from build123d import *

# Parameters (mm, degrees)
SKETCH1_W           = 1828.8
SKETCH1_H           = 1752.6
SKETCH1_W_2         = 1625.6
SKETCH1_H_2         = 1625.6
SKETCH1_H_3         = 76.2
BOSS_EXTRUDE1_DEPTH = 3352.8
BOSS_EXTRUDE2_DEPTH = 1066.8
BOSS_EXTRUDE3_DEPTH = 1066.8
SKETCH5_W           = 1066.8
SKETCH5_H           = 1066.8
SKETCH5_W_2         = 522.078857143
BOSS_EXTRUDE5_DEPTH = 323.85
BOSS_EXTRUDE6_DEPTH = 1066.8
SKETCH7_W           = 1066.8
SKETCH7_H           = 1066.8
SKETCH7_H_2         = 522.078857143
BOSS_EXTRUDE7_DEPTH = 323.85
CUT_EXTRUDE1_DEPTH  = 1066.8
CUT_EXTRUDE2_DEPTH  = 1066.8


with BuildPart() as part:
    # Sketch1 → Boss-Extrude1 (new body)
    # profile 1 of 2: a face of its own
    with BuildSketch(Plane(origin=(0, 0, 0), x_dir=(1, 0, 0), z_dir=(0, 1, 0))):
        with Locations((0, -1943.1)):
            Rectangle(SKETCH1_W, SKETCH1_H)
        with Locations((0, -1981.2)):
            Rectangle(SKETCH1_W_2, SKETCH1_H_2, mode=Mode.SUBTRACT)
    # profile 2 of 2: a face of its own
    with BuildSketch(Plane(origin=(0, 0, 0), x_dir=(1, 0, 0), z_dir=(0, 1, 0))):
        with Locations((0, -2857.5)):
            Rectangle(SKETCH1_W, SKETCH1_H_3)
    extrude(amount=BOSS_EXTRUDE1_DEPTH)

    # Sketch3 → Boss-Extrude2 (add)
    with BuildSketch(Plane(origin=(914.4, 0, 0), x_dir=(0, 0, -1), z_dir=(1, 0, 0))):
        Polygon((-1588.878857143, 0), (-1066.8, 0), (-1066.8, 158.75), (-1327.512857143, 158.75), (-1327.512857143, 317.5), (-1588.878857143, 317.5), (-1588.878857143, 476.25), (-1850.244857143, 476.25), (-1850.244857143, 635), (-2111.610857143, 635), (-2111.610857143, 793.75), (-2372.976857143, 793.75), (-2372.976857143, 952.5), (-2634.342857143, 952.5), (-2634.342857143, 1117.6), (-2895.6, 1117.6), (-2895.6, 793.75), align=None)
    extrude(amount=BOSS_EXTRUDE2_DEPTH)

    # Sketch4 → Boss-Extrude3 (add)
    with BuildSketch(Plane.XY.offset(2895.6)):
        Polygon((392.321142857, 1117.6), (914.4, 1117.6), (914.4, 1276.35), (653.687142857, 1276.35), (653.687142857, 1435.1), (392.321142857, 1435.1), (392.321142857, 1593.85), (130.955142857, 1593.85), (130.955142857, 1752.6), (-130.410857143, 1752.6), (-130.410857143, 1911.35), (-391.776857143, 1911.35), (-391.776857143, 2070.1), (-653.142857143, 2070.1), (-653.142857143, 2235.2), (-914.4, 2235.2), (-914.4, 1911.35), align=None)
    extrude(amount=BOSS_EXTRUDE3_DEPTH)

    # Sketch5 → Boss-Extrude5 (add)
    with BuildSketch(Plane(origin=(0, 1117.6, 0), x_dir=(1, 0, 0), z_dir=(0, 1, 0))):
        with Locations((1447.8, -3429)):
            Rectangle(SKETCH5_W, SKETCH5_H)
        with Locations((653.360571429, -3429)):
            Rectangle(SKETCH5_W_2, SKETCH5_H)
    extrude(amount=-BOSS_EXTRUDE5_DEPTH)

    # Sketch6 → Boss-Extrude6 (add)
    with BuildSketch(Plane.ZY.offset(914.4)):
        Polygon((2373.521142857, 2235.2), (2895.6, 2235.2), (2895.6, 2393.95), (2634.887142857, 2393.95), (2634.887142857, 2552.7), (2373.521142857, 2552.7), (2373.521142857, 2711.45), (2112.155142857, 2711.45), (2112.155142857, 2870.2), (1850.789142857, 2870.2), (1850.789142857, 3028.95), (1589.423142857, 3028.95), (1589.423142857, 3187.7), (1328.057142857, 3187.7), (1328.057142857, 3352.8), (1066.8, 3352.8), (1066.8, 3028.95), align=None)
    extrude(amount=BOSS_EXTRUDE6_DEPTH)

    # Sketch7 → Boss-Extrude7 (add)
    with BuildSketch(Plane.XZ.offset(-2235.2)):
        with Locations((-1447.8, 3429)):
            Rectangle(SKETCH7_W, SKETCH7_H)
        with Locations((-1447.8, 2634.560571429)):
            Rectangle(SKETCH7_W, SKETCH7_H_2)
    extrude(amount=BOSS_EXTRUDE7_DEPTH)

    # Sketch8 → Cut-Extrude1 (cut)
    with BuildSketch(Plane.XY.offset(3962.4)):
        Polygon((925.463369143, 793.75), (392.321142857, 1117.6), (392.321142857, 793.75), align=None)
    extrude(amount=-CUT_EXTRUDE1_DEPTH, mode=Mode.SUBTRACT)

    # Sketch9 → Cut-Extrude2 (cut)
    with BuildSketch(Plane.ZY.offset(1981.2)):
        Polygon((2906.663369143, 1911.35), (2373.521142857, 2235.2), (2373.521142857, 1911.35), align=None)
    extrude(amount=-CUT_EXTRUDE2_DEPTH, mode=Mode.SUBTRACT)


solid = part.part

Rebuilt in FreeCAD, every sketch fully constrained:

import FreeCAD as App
import Part
import Sketcher

V = App.Vector
Q = App.Units.Quantity


def add_polygon(sketch, points):
    """Adds a closed chain of lines whose ends are joined by coincident constraints."""
    first, n = sketch.GeometryCount, len(points)
    for a, b in zip(points, points[1:] + points[:1]):
        sketch.addGeometry(Part.LineSegment(App.Vector(*a, 0), App.Vector(*b, 0)), False)
    for i in range(n):
        sketch.addConstraint(Sketcher.Constraint("Coincident", first + i, 2, first + (i + 1) % n, 1))

doc = App.newDocument("Part")
body = doc.addObject("PartDesign::Body", "Body")

sketch1 = body.newObject("Sketcher::SketchObject", "Sketch")
sketch1.AttachmentSupport = (doc.getObject("XZ_Plane"), [""])
sketch1.MapMode = "FlatFace"
add_polygon(sketch1, [(-914.4, 1066.8), (-914.4, 2895.6), (914.4, 2895.6), (914.4, 1066.8)])
add_polygon(sketch1, [(812.8, 2794), (-812.8, 2794), (-812.8, 1168.4), (812.8, 1168.4)])
sketch1.addConstraint(Sketcher.Constraint("Vertical", 0))
sketch1.addConstraint(Sketcher.Constraint("Horizontal", 1))
sketch1.addConstraint(Sketcher.Constraint("Vertical", 2))
sketch1.addConstraint(Sketcher.Constraint("Horizontal", 3))
sketch1.addConstraint(Sketcher.Constraint("Horizontal", 4))
sketch1.addConstraint(Sketcher.Constraint("Vertical", 5))
sketch1.addConstraint(Sketcher.Constraint("Horizontal", 6))
sketch1.addConstraint(Sketcher.Constraint("Vertical", 7))
sketch1.addConstraint(Sketcher.Constraint("Equal", 3, 0))
sketch1.addConstraint(Sketcher.Constraint("Equal", 6, 5))
sketch1.addConstraint(Sketcher.Constraint("DistanceX", 1, 1, 1, 2, Q("72 in")))
sketch1.addConstraint(Sketcher.Constraint("DistanceX", 4, 2, 4, 1, Q("64 in")))
sketch1.addConstraint(Sketcher.Constraint("DistanceX", 0, 2, -1, 1, Q("36 in")))
sketch1.addConstraint(Sketcher.Constraint("DistanceY", -1, 1, 0, 2, Q("114 in")))
sketch1.addConstraint(Sketcher.Constraint("DistanceX", 4, 2, -1, 1, Q("32 in")))
sketch1.addConstraint(Sketcher.Constraint("DistanceY", -1, 1, 4, 2, Q("110 in")))
pad1 = body.newObject("PartDesign::Pad", "Pad")
pad1.Profile = sketch1
pad1.Length = Q("132 in")
pad1.Reversed = True

sketch2 = body.newObject("Sketcher::SketchObject", "Sketch001")
sketch2.AttachmentSupport = (doc.getObject("YZ_Plane"), [""])
sketch2.MapMode = "FlatFace"
sketch2.AttachmentOffset = App.Placement(V(0, 0, 36 * 25.4), App.Rotation())
add_polygon(sketch2, [(0, 1588.878857), (0, 1066.8), (158.75, 1066.8), (158.75, 1327.512857), (317.5, 1327.512857), (317.5, 1588.878857), (476.25, 1588.878857), (476.25, 1850.244857), (635, 1850.244857), (635, 2111.610857), (793.75, 2111.610857), (793.75, 2372.976857), (952.5, 2372.976857), (952.5, 2634.342857), (1117.6, 2634.342857), (1117.6, 2895.6), (793.75, 2895.6)])
sketch2.addConstraint(Sketcher.Constraint("Vertical", 0))
sketch2.addConstraint(Sketcher.Constraint("Horizontal", 1))
sketch2.addConstraint(Sketcher.Constraint("Vertical", 2))
sketch2.addConstraint(Sketcher.Constraint("Horizontal", 3))
sketch2.addConstraint(Sketcher.Constraint("Vertical", 4))
sketch2.addConstraint(Sketcher.Constraint("Horizontal", 5))
sketch2.addConstraint(Sketcher.Constraint("Vertical", 6))
sketch2.addConstraint(Sketcher.Constraint("Horizontal", 7))
sketch2.addConstraint(Sketcher.Constraint("Vertical", 8))
sketch2.addConstraint(Sketcher.Constraint("Horizontal", 9))
sketch2.addConstraint(Sketcher.Constraint("Vertical", 10))
sketch2.addConstraint(Sketcher.Constraint("Horizontal", 11))
sketch2.addConstraint(Sketcher.Constraint("Vertical", 12))
sketch2.addConstraint(Sketcher.Constraint("Horizontal", 13))
sketch2.addConstraint(Sketcher.Constraint("Vertical", 14))
sketch2.addConstraint(Sketcher.Constraint("Horizontal", 15))
sketch2.addConstraint(Sketcher.Constraint("PointOnObject", 0, 2, -2))
sketch2.addConstraint(Sketcher.Constraint("Horizontal", 5, 2, 16, 2))
sketch2.addConstraint(Sketcher.Constraint("Vertical", 10, 2, 15, 2))
sketch2.addConstraint(Sketcher.Constraint("Equal", 1, 3))
sketch2.addConstraint(Sketcher.Constraint("Equal", 3, 5))
sketch2.addConstraint(Sketcher.Constraint("Equal", 5, 7))
sketch2.addConstraint(Sketcher.Constraint("Equal", 7, 9))
sketch2.addConstraint(Sketcher.Constraint("Equal", 9, 11))
sketch2.addConstraint(Sketcher.Constraint("Equal", 4, 6))
sketch2.addConstraint(Sketcher.Constraint("Equal", 6, 8))
sketch2.addConstraint(Sketcher.Constraint("Equal", 8, 10))
sketch2.addConstraint(Sketcher.Constraint("Equal", 10, 12))
sketch2.addConstraint(Sketcher.Constraint("DistanceX", 13, 1, 13, 2, Q("6.5 in")))
sketch2.addConstraint(Sketcher.Constraint("DistanceY", -1, 1, 0, 2, Q("42 in")))
sketch2.addConstraint(Sketcher.Constraint("DistanceX", -1, 1, 7, 2, Q("25 in")))
sketch2.addConstraint(Sketcher.Constraint("DistanceY", -1, 1, 14, 2, Q("114 in")))
sketch2.addConstraint(Sketcher.Constraint("DistanceY", 4, 1, 4, 2, Q("10.29 in")))
sketch2.addConstraint(Sketcher.Constraint("Distance", 16, Q("1528.907848 mm")))
pad2 = body.newObject("PartDesign::Pad", "Pad001")
pad2.Profile = sketch2
pad2.Length = Q("42 in")

sketch3 = body.newObject("Sketcher::SketchObject", "Sketch002")
sketch3.AttachmentSupport = (doc.getObject("XY_Plane"), [""])
sketch3.MapMode = "FlatFace"
sketch3.AttachmentOffset = App.Placement(V(0, 0, 114 * 25.4), App.Rotation())
add_polygon(sketch3, [(392.321143, 1117.6), (914.4, 1117.6), (914.4, 1276.35), (653.687143, 1276.35), (653.687143, 1435.1), (392.321143, 1435.1), (392.321143, 1593.85), (130.955143, 1593.85), (130.955143, 1752.6), (-130.410857, 1752.6), (-130.410857, 1911.35), (-391.776857, 1911.35), (-391.776857, 2070.1), (-653.142857, 2070.1), (-653.142857, 2235.2), (-914.4, 2235.2), (-914.4, 1911.35)])
sketch3.addConstraint(Sketcher.Constraint("Horizontal", 0))
sketch3.addConstraint(Sketcher.Constraint("Vertical", 1))
sketch3.addConstraint(Sketcher.Constraint("Horizontal", 2))
sketch3.addConstraint(Sketcher.Constraint("Vertical", 3))
sketch3.addConstraint(Sketcher.Constraint("Horizontal", 4))
sketch3.addConstraint(Sketcher.Constraint("Vertical", 5))
sketch3.addConstraint(Sketcher.Constraint("Horizontal", 6))
sketch3.addConstraint(Sketcher.Constraint("Vertical", 7))
sketch3.addConstraint(Sketcher.Constraint("Horizontal", 8))
sketch3.addConstraint(Sketcher.Constraint("Vertical", 9))
sketch3.addConstraint(Sketcher.Constraint("Horizontal", 10))
sketch3.addConstraint(Sketcher.Constraint("Vertical", 11))
sketch3.addConstraint(Sketcher.Constraint("Horizontal", 12))
sketch3.addConstraint(Sketcher.Constraint("Vertical", 13))
sketch3.addConstraint(Sketcher.Constraint("Horizontal", 14))
sketch3.addConstraint(Sketcher.Constraint("Vertical", 15))
sketch3.addConstraint(Sketcher.Constraint("Horizontal", 10, 2, 15, 2))
sketch3.addConstraint(Sketcher.Constraint("Vertical", 5, 2, 16, 2))
sketch3.addConstraint(Sketcher.Constraint("Equal", 4, 6))
sketch3.addConstraint(Sketcher.Constraint("Equal", 6, 8))
sketch3.addConstraint(Sketcher.Constraint("Equal", 8, 10))
sketch3.addConstraint(Sketcher.Constraint("Equal", 10, 12))
sketch3.addConstraint(Sketcher.Constraint("Equal", 1, 3))
sketch3.addConstraint(Sketcher.Constraint("Equal", 3, 5))
sketch3.addConstraint(Sketcher.Constraint("Equal", 5, 7))
sketch3.addConstraint(Sketcher.Constraint("Equal", 7, 9))
sketch3.addConstraint(Sketcher.Constraint("Equal", 9, 11))
sketch3.addConstraint(Sketcher.Constraint("DistanceY", 13, 1, 13, 2, Q("6.5 in")))
sketch3.addConstraint(Sketcher.Constraint("DistanceX", -1, 1, 0, 2, Q("36 in")))
sketch3.addConstraint(Sketcher.Constraint("DistanceY", -1, 1, 0, 2, Q("44 in")))
sketch3.addConstraint(Sketcher.Constraint("DistanceY", -1, 1, 7, 2, Q("69 in")))
sketch3.addConstraint(Sketcher.Constraint("DistanceX", 14, 2, -1, 1, Q("36 in")))
sketch3.addConstraint(Sketcher.Constraint("DistanceX", 4, 2, 4, 1, Q("10.29 in")))
sketch3.addConstraint(Sketcher.Constraint("Distance", 16, Q("1528.907848 mm")))
pad3 = body.newObject("PartDesign::Pad", "Pad002")
pad3.Profile = sketch3
pad3.Length = Q("42 in")

sketch4 = body.newObject("Sketcher::SketchObject", "Sketch003")
sketch4.AttachmentSupport = (doc.getObject("XZ_Plane"), [""])
sketch4.MapMode = "FlatFace"
sketch4.AttachmentOffset = App.Placement(V(0, 0, -44 * 25.4), App.Rotation())
add_polygon(sketch4, [(1981.2, 3962.4), (1981.2, 2895.6), (392.321143, 2895.6), (392.321143, 3962.4)])
sketch4.addConstraint(Sketcher.Constraint("Vertical", 0))
sketch4.addConstraint(Sketcher.Constraint("Horizontal", 1))
sketch4.addConstraint(Sketcher.Constraint("Vertical", 2))
sketch4.addConstraint(Sketcher.Constraint("Horizontal", 3))
sketch4.addConstraint(Sketcher.Constraint("DistanceY", 0, 2, 0, 1, Q("42 in")))
sketch4.addConstraint(Sketcher.Constraint("DistanceX", -1, 1, 0, 2, Q("78 in")))
sketch4.addConstraint(Sketcher.Constraint("DistanceY", -1, 1, 0, 2, Q("114 in")))
sketch4.addConstraint(Sketcher.Constraint("DistanceX", 1, 2, 1, 1, Q("1588.878857 mm")))
pad4 = body.newObject("PartDesign::Pad", "Pad003")
pad4.Profile = sketch4
pad4.Length = Q("12.75 in")

sketch5 = body.newObject("Sketcher::SketchObject", "Sketch004")
sketch5.AttachmentSupport = (doc.getObject("YZ_Plane"), [""])
sketch5.MapMode = "FlatFace"
sketch5.AttachmentOffset = App.Placement(V(0, 0, -36 * 25.4), App.Rotation())
add_polygon(sketch5, [(2235.2, 2373.521143), (2235.2, 2895.6), (2393.95, 2895.6), (2393.95, 2634.887143), (2552.7, 2634.887143), (2552.7, 2373.521143), (2711.45, 2373.521143), (2711.45, 2112.155143), (2870.2, 2112.155143), (2870.2, 1850.789143), (3028.95, 1850.789143), (3028.95, 1589.423143), (3187.7, 1589.423143), (3187.7, 1328.057143), (3352.8, 1328.057143), (3352.8, 1066.8), (3028.95, 1066.8)])
sketch5.addConstraint(Sketcher.Constraint("Vertical", 0))
sketch5.addConstraint(Sketcher.Constraint("Horizontal", 1))
sketch5.addConstraint(Sketcher.Constraint("Vertical", 2))
sketch5.addConstraint(Sketcher.Constraint("Horizontal", 3))
sketch5.addConstraint(Sketcher.Constraint("Vertical", 4))
sketch5.addConstraint(Sketcher.Constraint("Horizontal", 5))
sketch5.addConstraint(Sketcher.Constraint("Vertical", 6))
sketch5.addConstraint(Sketcher.Constraint("Horizontal", 7))
sketch5.addConstraint(Sketcher.Constraint("Vertical", 8))
sketch5.addConstraint(Sketcher.Constraint("Horizontal", 9))
sketch5.addConstraint(Sketcher.Constraint("Vertical", 10))
sketch5.addConstraint(Sketcher.Constraint("Horizontal", 11))
sketch5.addConstraint(Sketcher.Constraint("Vertical", 12))
sketch5.addConstraint(Sketcher.Constraint("Horizontal", 13))
sketch5.addConstraint(Sketcher.Constraint("Vertical", 14))
sketch5.addConstraint(Sketcher.Constraint("Horizontal", 15))
sketch5.addConstraint(Sketcher.Constraint("Horizontal", 5, 2, 16, 2))
sketch5.addConstraint(Sketcher.Constraint("Vertical", 10, 2, 15, 2))
sketch5.addConstraint(Sketcher.Constraint("Equal", 1, 3))
sketch5.addConstraint(Sketcher.Constraint("Equal", 3, 5))
sketch5.addConstraint(Sketcher.Constraint("Equal", 5, 7))
sketch5.addConstraint(Sketcher.Constraint("Equal", 7, 9))
sketch5.addConstraint(Sketcher.Constraint("Equal", 9, 11))
sketch5.addConstraint(Sketcher.Constraint("Equal", 4, 6))
sketch5.addConstraint(Sketcher.Constraint("Equal", 6, 8))
sketch5.addConstraint(Sketcher.Constraint("Equal", 8, 10))
sketch5.addConstraint(Sketcher.Constraint("Equal", 10, 12))
sketch5.addConstraint(Sketcher.Constraint("DistanceX", 13, 1, 13, 2, Q("6.5 in")))
sketch5.addConstraint(Sketcher.Constraint("DistanceX", -1, 1, 0, 2, Q("88 in")))
sketch5.addConstraint(Sketcher.Constraint("DistanceY", -1, 1, 0, 2, Q("114 in")))
sketch5.addConstraint(Sketcher.Constraint("DistanceX", -1, 1, 7, 2, Q("113 in")))
sketch5.addConstraint(Sketcher.Constraint("DistanceY", -1, 1, 14, 2, Q("42 in")))
sketch5.addConstraint(Sketcher.Constraint("DistanceY", 4, 2, 4, 1, Q("10.29 in")))
sketch5.addConstraint(Sketcher.Constraint("Distance", 16, Q("1528.907848 mm")))
pad5 = body.newObject("PartDesign::Pad", "Pad004")
pad5.Profile = sketch5
pad5.Length = Q("42 in")
pad5.Reversed = True

sketch6 = body.newObject("Sketcher::SketchObject", "Sketch005")
sketch6.AttachmentSupport = (doc.getObject("XZ_Plane"), [""])
sketch6.MapMode = "FlatFace"
sketch6.AttachmentOffset = App.Placement(V(0, 0, -88 * 25.4), App.Rotation())
add_polygon(sketch6, [(-1981.2, 3962.4), (-1981.2, 2373.521143), (-914.4, 2373.521143), (-914.4, 3962.4)])
sketch6.addConstraint(Sketcher.Constraint("Vertical", 0))
sketch6.addConstraint(Sketcher.Constraint("Horizontal", 1))
sketch6.addConstraint(Sketcher.Constraint("Vertical", 2))
sketch6.addConstraint(Sketcher.Constraint("Horizontal", 3))
sketch6.addConstraint(Sketcher.Constraint("DistanceX", 1, 1, 1, 2, Q("42 in")))
sketch6.addConstraint(Sketcher.Constraint("DistanceX", 0, 2, -1, 1, Q("78 in")))
sketch6.addConstraint(Sketcher.Constraint("DistanceY", -1, 1, 2, 2, Q("156 in")))
sketch6.addConstraint(Sketcher.Constraint("DistanceY", 0, 2, 0, 1, Q("1588.878857 mm")))
pad6 = body.newObject("PartDesign::Pad", "Pad005")
pad6.Profile = sketch6
pad6.Length = Q("12.75 in")

sketch7 = body.newObject("Sketcher::SketchObject", "Sketch006")
sketch7.AttachmentSupport = (doc.getObject("XY_Plane"), [""])
sketch7.MapMode = "FlatFace"
sketch7.AttachmentOffset = App.Placement(V(0, 0, 156 * 25.4), App.Rotation())
add_polygon(sketch7, [(925.463369, 793.75), (392.321143, 1117.6), (392.321143, 793.75)])
sketch7.addConstraint(Sketcher.Constraint("Vertical", 1))
sketch7.addConstraint(Sketcher.Constraint("Horizontal", 2))
sketch7.addConstraint(Sketcher.Constraint("DistanceY", -1, 1, 0, 2, Q("44 in")))
sketch7.addConstraint(Sketcher.Constraint("DistanceY", 1, 2, 1, 1, Q("12.75 in")))
sketch7.addConstraint(Sketcher.Constraint("Distance", 0, Q("623.794402 mm")))
sketch7.addConstraint(Sketcher.Constraint("DistanceX", -1, 1, 2, 2, Q("925.463369 mm")))
pocket1 = body.newObject("PartDesign::Pocket", "Pocket")
pocket1.Profile = sketch7
pocket1.Length = Q("42 in")

sketch8 = body.newObject("Sketcher::SketchObject", "Sketch007")
sketch8.AttachmentSupport = (doc.getObject("YZ_Plane"), [""])
sketch8.MapMode = "FlatFace"
sketch8.AttachmentOffset = App.Placement(V(0, 0, -78 * 25.4), App.Rotation())
add_polygon(sketch8, [(1911.35, 2906.663369), (2235.2, 2373.521143), (1911.35, 2373.521143)])
sketch8.addConstraint(Sketcher.Constraint("Horizontal", 1))
sketch8.addConstraint(Sketcher.Constraint("Vertical", 2))
sketch8.addConstraint(Sketcher.Constraint("DistanceX", -1, 1, 0, 2, Q("88 in")))
sketch8.addConstraint(Sketcher.Constraint("DistanceX", 1, 2, 1, 1, Q("12.75 in")))
sketch8.addConstraint(Sketcher.Constraint("Distance", 0, Q("623.794402 mm")))
sketch8.addConstraint(Sketcher.Constraint("DistanceY", -1, 1, 2, 2, Q("2906.663369 mm")))
pocket2 = body.newObject("PartDesign::Pocket", "Pocket001")
pocket2.Profile = sketch8
pocket2.Length = Q("42 in")
pocket2.Reversed = True

doc.recompute()
